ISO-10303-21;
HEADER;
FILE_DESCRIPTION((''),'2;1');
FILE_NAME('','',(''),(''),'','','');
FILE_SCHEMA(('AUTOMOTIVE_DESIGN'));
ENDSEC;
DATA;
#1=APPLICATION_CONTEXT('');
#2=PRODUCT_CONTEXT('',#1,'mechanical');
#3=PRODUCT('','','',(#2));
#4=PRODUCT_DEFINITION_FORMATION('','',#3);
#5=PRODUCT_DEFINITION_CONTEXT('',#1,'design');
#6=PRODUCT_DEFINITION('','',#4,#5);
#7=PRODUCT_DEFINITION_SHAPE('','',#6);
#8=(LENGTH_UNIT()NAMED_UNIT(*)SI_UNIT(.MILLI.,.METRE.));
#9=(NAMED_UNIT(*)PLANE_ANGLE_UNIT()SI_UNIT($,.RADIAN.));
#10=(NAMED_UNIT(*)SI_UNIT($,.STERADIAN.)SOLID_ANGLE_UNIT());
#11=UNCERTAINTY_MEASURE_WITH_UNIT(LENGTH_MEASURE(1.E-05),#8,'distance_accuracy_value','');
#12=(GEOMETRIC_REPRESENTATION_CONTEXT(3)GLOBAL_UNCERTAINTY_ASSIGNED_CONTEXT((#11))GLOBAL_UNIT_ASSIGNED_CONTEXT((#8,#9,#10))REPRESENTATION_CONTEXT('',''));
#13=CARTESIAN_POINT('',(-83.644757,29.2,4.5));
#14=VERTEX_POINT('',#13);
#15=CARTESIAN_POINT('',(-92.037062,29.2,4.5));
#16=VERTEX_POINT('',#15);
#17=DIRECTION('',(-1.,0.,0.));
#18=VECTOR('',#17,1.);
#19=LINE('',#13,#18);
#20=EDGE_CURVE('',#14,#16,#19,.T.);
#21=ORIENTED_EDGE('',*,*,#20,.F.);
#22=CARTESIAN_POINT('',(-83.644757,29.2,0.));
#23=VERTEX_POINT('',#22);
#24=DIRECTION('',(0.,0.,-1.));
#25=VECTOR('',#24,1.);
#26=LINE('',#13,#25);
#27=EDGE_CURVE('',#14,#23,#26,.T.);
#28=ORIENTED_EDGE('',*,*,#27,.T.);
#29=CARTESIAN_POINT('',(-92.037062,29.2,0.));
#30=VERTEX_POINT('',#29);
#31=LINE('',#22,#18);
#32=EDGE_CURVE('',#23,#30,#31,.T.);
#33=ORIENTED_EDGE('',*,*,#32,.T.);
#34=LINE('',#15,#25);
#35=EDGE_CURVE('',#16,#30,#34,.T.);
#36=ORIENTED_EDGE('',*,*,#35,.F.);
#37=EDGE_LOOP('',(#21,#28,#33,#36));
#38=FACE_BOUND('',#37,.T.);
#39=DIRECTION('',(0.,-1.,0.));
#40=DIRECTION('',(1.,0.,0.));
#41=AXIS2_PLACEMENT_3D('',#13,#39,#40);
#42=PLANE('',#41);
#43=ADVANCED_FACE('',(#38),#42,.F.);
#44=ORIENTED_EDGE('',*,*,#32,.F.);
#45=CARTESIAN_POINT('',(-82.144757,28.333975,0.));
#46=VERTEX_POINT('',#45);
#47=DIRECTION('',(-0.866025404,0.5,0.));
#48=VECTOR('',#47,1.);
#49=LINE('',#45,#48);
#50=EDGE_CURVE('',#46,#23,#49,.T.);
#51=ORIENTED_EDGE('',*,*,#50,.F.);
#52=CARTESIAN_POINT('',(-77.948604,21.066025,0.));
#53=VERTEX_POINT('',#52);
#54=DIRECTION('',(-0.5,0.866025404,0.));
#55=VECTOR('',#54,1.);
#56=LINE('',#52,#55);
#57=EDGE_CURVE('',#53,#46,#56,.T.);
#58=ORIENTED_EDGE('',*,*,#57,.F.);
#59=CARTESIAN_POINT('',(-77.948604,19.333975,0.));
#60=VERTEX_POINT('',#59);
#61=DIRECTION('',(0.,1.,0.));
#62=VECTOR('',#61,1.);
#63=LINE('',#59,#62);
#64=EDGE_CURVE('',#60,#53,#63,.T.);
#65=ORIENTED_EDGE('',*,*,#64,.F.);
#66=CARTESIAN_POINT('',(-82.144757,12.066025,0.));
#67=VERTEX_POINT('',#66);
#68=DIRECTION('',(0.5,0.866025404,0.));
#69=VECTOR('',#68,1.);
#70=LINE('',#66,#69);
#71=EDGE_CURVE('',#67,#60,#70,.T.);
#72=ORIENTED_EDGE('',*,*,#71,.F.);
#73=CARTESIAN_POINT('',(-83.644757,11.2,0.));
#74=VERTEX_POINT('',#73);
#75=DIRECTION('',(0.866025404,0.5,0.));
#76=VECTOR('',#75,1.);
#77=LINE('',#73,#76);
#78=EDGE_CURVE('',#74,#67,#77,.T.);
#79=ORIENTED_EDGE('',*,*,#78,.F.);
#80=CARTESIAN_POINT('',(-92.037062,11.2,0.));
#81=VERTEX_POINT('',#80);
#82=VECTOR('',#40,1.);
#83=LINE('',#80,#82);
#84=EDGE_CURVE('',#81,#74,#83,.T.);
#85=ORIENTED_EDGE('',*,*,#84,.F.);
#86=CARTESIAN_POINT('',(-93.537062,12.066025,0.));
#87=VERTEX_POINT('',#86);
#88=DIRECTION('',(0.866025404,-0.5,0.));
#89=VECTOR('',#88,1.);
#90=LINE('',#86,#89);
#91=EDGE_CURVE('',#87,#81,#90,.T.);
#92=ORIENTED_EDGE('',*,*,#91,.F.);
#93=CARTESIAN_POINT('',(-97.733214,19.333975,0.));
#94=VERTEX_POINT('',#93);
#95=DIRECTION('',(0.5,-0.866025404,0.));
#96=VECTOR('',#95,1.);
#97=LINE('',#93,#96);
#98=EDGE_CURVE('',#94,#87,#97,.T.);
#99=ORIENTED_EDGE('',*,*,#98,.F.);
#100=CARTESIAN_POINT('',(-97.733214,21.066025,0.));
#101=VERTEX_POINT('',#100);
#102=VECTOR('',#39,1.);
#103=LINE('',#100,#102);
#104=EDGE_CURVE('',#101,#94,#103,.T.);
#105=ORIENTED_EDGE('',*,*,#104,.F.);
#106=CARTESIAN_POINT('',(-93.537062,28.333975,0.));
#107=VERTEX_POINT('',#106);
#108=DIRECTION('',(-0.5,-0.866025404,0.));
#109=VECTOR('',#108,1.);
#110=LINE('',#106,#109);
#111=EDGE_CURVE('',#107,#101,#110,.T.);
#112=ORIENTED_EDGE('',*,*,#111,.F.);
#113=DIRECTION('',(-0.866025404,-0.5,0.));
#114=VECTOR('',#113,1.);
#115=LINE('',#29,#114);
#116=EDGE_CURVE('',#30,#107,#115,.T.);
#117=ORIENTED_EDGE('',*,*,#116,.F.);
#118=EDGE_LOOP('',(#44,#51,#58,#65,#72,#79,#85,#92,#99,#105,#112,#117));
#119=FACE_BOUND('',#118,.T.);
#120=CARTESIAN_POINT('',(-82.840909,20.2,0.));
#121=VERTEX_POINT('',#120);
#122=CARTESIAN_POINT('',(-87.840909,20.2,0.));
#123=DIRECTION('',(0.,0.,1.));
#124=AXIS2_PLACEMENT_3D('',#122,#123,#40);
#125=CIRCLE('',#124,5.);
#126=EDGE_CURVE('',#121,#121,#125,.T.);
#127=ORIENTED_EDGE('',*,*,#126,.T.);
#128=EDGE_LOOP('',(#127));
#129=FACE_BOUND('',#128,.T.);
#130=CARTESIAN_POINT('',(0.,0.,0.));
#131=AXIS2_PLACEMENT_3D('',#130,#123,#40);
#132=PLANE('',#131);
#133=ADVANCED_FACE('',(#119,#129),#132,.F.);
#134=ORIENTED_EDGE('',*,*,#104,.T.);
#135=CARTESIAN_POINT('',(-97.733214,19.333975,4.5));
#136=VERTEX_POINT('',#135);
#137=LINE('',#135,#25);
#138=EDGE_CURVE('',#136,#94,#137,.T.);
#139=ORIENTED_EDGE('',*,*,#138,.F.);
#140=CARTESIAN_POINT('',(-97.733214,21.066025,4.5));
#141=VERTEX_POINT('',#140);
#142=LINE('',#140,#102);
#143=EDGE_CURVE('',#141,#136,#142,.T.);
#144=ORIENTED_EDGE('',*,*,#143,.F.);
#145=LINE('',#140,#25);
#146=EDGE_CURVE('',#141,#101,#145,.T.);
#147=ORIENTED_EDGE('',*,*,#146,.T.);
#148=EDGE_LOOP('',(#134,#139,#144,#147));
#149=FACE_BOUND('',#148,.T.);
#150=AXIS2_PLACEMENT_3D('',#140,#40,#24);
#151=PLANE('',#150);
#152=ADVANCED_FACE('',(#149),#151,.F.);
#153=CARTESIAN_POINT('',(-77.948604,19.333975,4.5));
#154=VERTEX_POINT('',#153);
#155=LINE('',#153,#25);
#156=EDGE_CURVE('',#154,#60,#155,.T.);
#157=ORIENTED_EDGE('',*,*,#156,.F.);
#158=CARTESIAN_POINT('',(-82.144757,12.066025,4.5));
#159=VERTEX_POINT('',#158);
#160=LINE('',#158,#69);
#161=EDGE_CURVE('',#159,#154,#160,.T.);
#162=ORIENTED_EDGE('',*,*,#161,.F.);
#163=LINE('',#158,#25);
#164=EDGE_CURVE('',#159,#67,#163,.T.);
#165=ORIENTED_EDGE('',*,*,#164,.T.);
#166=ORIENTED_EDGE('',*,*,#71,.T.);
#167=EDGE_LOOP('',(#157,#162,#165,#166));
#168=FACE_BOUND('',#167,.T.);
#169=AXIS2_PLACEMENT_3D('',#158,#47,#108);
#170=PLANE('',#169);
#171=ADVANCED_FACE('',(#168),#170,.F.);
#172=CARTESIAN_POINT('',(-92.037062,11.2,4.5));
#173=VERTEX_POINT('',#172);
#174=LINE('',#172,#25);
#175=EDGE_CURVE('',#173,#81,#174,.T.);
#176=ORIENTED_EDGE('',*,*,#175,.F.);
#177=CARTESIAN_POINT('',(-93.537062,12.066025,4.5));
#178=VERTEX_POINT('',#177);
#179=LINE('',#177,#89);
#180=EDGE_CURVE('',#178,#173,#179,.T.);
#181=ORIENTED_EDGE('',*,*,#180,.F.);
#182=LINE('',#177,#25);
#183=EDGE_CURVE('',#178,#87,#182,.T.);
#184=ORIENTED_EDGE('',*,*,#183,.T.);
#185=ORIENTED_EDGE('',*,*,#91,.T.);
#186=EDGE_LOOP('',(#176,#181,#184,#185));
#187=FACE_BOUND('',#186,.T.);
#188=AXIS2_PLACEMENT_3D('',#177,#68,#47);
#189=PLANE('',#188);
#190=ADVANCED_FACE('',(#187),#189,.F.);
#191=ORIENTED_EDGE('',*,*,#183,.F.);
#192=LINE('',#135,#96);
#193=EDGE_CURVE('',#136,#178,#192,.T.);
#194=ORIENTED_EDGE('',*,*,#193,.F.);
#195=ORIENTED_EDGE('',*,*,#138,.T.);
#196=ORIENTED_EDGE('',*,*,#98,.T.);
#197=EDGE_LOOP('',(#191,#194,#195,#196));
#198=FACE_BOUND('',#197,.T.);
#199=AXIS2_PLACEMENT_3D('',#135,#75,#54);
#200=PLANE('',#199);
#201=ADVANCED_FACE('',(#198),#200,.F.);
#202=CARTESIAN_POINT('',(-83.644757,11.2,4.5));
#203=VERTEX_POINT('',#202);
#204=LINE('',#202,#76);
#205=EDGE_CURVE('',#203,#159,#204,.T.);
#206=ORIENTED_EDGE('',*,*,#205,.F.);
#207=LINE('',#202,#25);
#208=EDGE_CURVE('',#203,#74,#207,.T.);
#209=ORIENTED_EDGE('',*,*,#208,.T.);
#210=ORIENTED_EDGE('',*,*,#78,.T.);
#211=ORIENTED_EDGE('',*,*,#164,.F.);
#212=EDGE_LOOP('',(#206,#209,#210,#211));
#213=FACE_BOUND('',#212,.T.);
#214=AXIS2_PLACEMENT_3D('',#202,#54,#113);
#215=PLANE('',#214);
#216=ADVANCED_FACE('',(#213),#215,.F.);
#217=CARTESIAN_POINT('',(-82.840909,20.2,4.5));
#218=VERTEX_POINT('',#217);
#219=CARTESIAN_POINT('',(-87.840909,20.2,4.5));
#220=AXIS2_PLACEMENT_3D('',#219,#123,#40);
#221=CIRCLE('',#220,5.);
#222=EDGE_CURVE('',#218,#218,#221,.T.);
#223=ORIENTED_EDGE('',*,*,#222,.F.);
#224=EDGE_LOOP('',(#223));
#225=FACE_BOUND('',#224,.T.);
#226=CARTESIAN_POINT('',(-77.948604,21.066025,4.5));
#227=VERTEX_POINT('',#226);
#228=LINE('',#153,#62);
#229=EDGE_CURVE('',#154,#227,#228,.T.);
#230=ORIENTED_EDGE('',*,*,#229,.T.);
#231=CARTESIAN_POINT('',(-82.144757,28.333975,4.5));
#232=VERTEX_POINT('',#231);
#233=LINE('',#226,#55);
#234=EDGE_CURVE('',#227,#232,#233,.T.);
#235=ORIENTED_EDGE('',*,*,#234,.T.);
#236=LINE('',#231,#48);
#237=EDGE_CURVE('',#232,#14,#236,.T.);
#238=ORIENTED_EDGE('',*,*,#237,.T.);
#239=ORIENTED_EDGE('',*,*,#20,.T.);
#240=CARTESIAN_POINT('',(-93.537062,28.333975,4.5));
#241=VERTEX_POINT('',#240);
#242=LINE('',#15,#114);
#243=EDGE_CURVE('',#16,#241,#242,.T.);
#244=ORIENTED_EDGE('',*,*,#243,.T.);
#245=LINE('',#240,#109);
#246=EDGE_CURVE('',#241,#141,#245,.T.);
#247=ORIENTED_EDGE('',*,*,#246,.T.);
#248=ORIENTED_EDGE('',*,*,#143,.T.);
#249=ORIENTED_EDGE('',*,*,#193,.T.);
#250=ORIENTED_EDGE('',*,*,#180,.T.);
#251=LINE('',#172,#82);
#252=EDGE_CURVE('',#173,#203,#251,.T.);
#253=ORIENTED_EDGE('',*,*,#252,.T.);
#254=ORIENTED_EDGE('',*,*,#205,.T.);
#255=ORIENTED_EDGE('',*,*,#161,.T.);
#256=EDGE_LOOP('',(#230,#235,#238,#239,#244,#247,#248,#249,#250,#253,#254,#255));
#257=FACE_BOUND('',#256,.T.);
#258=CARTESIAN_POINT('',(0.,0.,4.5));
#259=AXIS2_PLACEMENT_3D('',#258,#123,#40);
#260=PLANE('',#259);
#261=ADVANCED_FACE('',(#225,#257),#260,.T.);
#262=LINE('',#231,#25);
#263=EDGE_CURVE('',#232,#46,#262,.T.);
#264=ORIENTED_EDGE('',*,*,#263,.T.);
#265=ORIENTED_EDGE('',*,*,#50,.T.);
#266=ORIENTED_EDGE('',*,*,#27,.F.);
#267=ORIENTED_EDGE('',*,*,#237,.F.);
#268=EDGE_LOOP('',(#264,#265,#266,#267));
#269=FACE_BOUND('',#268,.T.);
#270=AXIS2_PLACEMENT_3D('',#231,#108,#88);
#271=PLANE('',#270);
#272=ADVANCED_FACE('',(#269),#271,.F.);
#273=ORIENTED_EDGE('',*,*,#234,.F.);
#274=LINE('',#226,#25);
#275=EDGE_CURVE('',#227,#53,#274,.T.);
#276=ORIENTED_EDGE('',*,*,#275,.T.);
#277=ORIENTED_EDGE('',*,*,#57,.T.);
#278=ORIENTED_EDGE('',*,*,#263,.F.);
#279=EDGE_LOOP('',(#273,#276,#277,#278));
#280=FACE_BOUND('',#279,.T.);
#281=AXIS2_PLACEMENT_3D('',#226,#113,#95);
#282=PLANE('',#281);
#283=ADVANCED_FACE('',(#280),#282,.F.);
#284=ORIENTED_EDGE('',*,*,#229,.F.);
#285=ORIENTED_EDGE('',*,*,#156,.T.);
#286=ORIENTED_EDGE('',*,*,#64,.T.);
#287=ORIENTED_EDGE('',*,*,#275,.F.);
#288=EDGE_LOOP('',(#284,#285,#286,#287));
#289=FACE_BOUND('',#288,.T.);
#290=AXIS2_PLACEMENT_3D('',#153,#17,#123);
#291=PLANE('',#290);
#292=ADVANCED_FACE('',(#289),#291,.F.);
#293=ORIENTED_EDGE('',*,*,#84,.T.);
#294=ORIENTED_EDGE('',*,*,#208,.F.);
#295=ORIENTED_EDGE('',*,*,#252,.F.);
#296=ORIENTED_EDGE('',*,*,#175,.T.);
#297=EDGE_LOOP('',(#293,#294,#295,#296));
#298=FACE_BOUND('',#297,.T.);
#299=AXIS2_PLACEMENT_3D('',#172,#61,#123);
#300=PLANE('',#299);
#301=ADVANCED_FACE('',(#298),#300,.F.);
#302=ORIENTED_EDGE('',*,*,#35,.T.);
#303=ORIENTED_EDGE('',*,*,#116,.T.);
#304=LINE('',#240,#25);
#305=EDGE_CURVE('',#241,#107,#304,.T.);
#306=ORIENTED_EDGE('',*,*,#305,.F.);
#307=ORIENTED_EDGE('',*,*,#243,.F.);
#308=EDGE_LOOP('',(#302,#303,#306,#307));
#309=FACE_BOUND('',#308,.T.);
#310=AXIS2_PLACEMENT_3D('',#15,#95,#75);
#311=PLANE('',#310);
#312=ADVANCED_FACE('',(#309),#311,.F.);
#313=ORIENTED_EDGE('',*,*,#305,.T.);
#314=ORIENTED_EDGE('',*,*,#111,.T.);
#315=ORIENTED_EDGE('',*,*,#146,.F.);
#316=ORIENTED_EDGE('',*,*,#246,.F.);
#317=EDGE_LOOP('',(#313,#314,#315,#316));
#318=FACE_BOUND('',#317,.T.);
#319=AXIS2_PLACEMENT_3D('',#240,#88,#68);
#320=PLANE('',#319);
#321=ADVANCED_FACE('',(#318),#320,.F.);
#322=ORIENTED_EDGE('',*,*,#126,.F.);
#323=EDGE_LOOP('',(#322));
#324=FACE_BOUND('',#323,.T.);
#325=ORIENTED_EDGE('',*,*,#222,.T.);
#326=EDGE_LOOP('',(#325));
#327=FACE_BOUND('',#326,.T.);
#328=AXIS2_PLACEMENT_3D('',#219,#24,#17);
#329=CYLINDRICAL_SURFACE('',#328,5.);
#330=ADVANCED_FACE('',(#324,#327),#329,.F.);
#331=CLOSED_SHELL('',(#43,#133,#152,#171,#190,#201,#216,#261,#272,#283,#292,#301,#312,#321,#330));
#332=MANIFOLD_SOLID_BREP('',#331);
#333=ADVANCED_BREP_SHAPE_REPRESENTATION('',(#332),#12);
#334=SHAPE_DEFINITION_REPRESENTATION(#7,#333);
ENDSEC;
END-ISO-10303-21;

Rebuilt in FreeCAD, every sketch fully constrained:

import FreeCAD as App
import Part
import Sketcher
from FreeCAD import Vector
Q = App.Units.Quantity


def add_polygon(sketch, points):
    """Adds a closed chain of lines whose ends are joined by coincident constraints."""
    first, n = sketch.GeometryCount, len(points)
    for a, b in zip(points, points[1:] + points[:1]):
        sketch.addGeometry(Part.LineSegment(App.Vector(*a, 0), App.Vector(*b, 0)), False)
    for i in range(n):
        sketch.addConstraint(Sketcher.Constraint("Coincident", first + i, 2, first + (i + 1) % n, 1))

doc = App.newDocument("Part")
body = doc.addObject("PartDesign::Body", "Body")

# Sketch on XY plane
sketch1 = body.newObject("Sketcher::SketchObject", "Sketch")
sketch1.AttachmentSupport = (doc.getObject("XY_Plane"), [""])
sketch1.MapMode = "FlatFace"
add_polygon(sketch1, [(-77.9, 21.1), (-82.1, 28.3), (-83.6, 29.2), (-92, 29.2), (-93.5, 28.3), (-97.7, 21.1), (-97.7, 19.3), (-93.5, 12.1), (-92, 11.2), (-83.6, 11.2), (-82.1, 12.1), (-77.9, 19.3)])  # lines 0-11
sketch1.addGeometry(Part.Circle(Vector(-87.8, 20.2, 0), Vector(0, 0, 1), 5), False)  # 12
sketch1.addConstraint([
    Sketcher.Constraint("Horizontal", 2),
    Sketcher.Constraint("Vertical", 5),
    Sketcher.Constraint("Horizontal", 8),
    Sketcher.Constraint("Vertical", 11),
    Sketcher.Constraint("Perpendicular", 0, 3),
    Sketcher.Constraint("Perpendicular", 1, 4),
    Sketcher.Constraint("Perpendicular", 3, 6),
    Sketcher.Constraint("Perpendicular", 4, 7),
    Sketcher.Constraint("Perpendicular", 6, 9),
    Sketcher.Constraint("Perpendicular", 7, 10),
    Sketcher.Constraint("Horizontal", 0, 2, 3, 2),
    Sketcher.Constraint("Horizontal", 6, 2, 9, 2),
    Sketcher.Constraint("Horizontal", 5, 2, 10, 2),
    Sketcher.Constraint("Horizontal", 4, 2, 11, 2),
    Sketcher.Constraint("Vertical", 3, 2, 6, 2),
    Sketcher.Constraint("Vertical", 2, 2, 7, 2),
    Sketcher.Constraint("Vertical", 1, 2, 8, 2),
    Sketcher.Constraint("Diameter", 12, 10.0),
    Sketcher.Constraint("Angle", 0, Q("120 deg")),
    Sketcher.Constraint("DistanceY", 12, 3, 1, 2, 9.0),
    Sketcher.Constraint("DistanceY", 5, 2, 3, 2, 9.0),
    Sketcher.Constraint("DistanceY", 7, 2, 12, 3, 9.0),
    Sketcher.Constraint("DistanceY", -1, 1, 12, 3, 20.2),
    Sketcher.Constraint("DistanceX", 1, 2, 0, 2, 1.5),
    Sketcher.Constraint("DistanceX", 2, 2, 2, 1, 8.392305),
    Sketcher.Constraint("DistanceX", 12, 3, -1, 1, 87.840909),
    Sketcher.Constraint("DistanceX", 2, 2, -1, 1, 92.037062),
])
pad1 = body.newObject("PartDesign::Pad", "Pad")
pad1.Profile = sketch1
pad1.Length = 4.5

doc.recompute()
